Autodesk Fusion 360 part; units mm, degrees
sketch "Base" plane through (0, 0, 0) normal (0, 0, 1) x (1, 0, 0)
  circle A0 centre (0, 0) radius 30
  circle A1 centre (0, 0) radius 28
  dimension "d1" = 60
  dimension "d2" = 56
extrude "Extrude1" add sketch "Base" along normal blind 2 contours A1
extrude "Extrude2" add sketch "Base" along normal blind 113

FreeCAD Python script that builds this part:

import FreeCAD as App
import Part
import Sketcher
Q = App.Units.Quantity

doc = App.newDocument("Part")
body = doc.addObject("PartDesign::Body", "Body")

sketch1 = body.newObject("Sketcher::SketchObject", "Sketch")
sketch1.AttachmentSupport = (doc.getObject("XY_Plane"), [""])
sketch1.MapMode = "FlatFace"
sketch1.addGeometry(Part.Circle(App.Vector(0, 0, 0), App.Vector(0, 0, 1), 28), False)
sketch1.addConstraint(Sketcher.Constraint("Coincident", 0, 3, -1, 1))
sketch1.addConstraint(Sketcher.Constraint("Diameter", 0, Q("56 mm")))
pad1 = body.newObject("PartDesign::Pad", "Pad")
pad1.Profile = sketch1
pad1.Length = 2

sketch2 = body.newObject("Sketcher::SketchObject", "Sketch001")
sketch2.AttachmentSupport = (doc.getObject("XY_Plane"), [""])
sketch2.MapMode = "FlatFace"
sketch2.addGeometry(Part.Circle(App.Vector(0, 0, 0), App.Vector(0, 0, 1), 30), False)
sketch2.addGeometry(Part.Circle(App.Vector(0, 0, 0), App.Vector(0, 0, 1), 28), False)
sketch2.addConstraint(Sketcher.Constraint("Coincident", 0, 3, -1, 1))
sketch2.addConstraint(Sketcher.Constraint("Coincident", 1, 3, -1, 1))
sketch2.addConstraint(Sketcher.Constraint("Diameter", 0, Q("60 mm")))
sketch2.addConstraint(Sketcher.Constraint("Diameter", 1, Q("56 mm")))
pad2 = body.newObject("PartDesign::Pad", "Pad001")
pad2.Profile = sketch2
pad2.Length = 113

doc.recompute()
